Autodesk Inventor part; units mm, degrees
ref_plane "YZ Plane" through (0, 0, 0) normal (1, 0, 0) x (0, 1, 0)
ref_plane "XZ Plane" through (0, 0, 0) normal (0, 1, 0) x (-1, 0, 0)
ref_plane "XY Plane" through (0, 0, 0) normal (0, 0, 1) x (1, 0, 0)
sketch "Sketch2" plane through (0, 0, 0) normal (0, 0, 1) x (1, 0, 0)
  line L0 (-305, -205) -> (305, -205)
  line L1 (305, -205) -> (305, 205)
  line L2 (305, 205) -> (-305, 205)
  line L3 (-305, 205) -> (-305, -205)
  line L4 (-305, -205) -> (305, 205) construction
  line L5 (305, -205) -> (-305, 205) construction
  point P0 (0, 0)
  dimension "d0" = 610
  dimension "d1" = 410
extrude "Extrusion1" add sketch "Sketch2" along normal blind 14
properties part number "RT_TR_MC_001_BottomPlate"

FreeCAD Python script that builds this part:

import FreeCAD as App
import Part
import Sketcher

V = App.Vector


def add_polygon(sketch, points):
    """Adds a closed chain of lines whose ends are joined by coincident constraints."""
    first, n = sketch.GeometryCount, len(points)
    for a, b in zip(points, points[1:] + points[:1]):
        sketch.addGeometry(Part.LineSegment(App.Vector(*a, 0), App.Vector(*b, 0)), False)
    for i in range(n):
        sketch.addConstraint(Sketcher.Constraint("Coincident", first + i, 2, first + (i + 1) % n, 1))

doc = App.newDocument("Part")
body = doc.addObject("PartDesign::Body", "Body")

# Sketch on XY plane
sketch1 = body.newObject("Sketcher::SketchObject", "Sketch")
sketch1.AttachmentSupport = (doc.getObject("XY_Plane"), [""])
sketch1.MapMode = "FlatFace"
add_polygon(sketch1, [(-305, 205), (-305, -205), (305, -205), (305, 205)])  # lines 0-3
sketch1.addConstraint([
    Sketcher.Constraint("Vertical", 0),
    Sketcher.Constraint("Horizontal", 1),
    Sketcher.Constraint("Vertical", 2),
    Sketcher.Constraint("Horizontal", 3),
    Sketcher.Constraint("Symmetric", 0, 2, 2, 2, -1, 1),
    Sketcher.Constraint("DistanceX", 1, 1, 1, 2, 610.0),
    Sketcher.Constraint("DistanceY", 0, 2, 0, 1, 410.0),
])
pad1 = body.newObject("PartDesign::Pad", "Pad")
pad1.Profile = sketch1
pad1.Length = 14

doc.recompute()
